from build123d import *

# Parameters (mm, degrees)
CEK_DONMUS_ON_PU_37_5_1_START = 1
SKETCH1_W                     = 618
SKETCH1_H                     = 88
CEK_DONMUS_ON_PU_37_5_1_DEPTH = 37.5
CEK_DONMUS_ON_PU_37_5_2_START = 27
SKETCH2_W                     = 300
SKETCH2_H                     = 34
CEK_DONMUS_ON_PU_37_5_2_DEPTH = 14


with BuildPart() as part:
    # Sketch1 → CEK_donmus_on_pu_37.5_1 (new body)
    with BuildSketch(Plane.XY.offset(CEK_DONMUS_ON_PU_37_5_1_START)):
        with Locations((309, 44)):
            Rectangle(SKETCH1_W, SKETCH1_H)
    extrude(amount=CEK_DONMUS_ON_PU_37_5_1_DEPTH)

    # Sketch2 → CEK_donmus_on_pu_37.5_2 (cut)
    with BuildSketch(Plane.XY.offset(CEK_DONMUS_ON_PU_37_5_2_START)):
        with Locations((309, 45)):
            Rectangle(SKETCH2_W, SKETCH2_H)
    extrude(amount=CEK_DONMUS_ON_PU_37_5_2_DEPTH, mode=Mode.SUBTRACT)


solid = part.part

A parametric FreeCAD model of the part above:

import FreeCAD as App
import Part
import Sketcher

V = App.Vector


def add_polygon(sketch, points):
    """Adds a closed chain of lines whose ends are joined by coincident constraints."""
    first, n = sketch.GeometryCount, len(points)
    for a, b in zip(points, points[1:] + points[:1]):
        sketch.addGeometry(Part.LineSegment(App.Vector(*a, 0), App.Vector(*b, 0)), False)
    for i in range(n):
        sketch.addConstraint(Sketcher.Constraint("Coincident", first + i, 2, first + (i + 1) % n, 1))

doc = App.newDocument("Part")
body = doc.addObject("PartDesign::Body", "Body")

# Sketch on XY plane
sketch1 = body.newObject("Sketcher::SketchObject", "Sketch")
sketch1.AttachmentSupport = (doc.getObject("XY_Plane"), [""])
sketch1.MapMode = "FlatFace"
sketch1.AttachmentOffset = App.Placement(V(0, 0, 1), App.Rotation())
add_polygon(sketch1, [(0, 88), (0, 0), (618, 0), (618, 88)])  # lines 0-3
sketch1.addConstraint([
    Sketcher.Constraint("Vertical", 0),
    Sketcher.Constraint("Horizontal", 1),
    Sketcher.Constraint("Vertical", 2),
    Sketcher.Constraint("Horizontal", 3),
    Sketcher.Constraint("Coincident", 0, 2, -1, 1),
    Sketcher.Constraint("DistanceX", 1, 1, 1, 2, 618.0),
    Sketcher.Constraint("DistanceY", 0, 2, 0, 1, 88.0),
])
pad1 = body.newObject("PartDesign::Pad", "Pad")
pad1.Profile = sketch1
pad1.Length = 37.5

# Sketch on XY plane
sketch2 = body.newObject("Sketcher::SketchObject", "Sketch001")
sketch2.AttachmentSupport = (doc.getObject("XY_Plane"), [""])
sketch2.MapMode = "FlatFace"
sketch2.AttachmentOffset = App.Placement(V(0, 0, 27), App.Rotation())
add_polygon(sketch2, [(159, 62), (159, 28), (459, 28), (459, 62)])  # lines 0-3
sketch2.addConstraint([
    Sketcher.Constraint("Vertical", 0),
    Sketcher.Constraint("Horizontal", 1),
    Sketcher.Constraint("Vertical", 2),
    Sketcher.Constraint("Horizontal", 3),
    Sketcher.Constraint("DistanceX", 1, 1, 1, 2, 300.0),
    Sketcher.Constraint("DistanceY", 0, 2, 0, 1, 34.0),
    Sketcher.Constraint("DistanceX", -1, 1, 0, 2, 159.0),
    Sketcher.Constraint("DistanceY", -1, 1, 0, 2, 28.0),
])
pocket1 = body.newObject("PartDesign::Pocket", "Pocket")
pocket1.Profile = sketch2
pocket1.Length = 14
pocket1.Reversed = True

doc.recompute()
